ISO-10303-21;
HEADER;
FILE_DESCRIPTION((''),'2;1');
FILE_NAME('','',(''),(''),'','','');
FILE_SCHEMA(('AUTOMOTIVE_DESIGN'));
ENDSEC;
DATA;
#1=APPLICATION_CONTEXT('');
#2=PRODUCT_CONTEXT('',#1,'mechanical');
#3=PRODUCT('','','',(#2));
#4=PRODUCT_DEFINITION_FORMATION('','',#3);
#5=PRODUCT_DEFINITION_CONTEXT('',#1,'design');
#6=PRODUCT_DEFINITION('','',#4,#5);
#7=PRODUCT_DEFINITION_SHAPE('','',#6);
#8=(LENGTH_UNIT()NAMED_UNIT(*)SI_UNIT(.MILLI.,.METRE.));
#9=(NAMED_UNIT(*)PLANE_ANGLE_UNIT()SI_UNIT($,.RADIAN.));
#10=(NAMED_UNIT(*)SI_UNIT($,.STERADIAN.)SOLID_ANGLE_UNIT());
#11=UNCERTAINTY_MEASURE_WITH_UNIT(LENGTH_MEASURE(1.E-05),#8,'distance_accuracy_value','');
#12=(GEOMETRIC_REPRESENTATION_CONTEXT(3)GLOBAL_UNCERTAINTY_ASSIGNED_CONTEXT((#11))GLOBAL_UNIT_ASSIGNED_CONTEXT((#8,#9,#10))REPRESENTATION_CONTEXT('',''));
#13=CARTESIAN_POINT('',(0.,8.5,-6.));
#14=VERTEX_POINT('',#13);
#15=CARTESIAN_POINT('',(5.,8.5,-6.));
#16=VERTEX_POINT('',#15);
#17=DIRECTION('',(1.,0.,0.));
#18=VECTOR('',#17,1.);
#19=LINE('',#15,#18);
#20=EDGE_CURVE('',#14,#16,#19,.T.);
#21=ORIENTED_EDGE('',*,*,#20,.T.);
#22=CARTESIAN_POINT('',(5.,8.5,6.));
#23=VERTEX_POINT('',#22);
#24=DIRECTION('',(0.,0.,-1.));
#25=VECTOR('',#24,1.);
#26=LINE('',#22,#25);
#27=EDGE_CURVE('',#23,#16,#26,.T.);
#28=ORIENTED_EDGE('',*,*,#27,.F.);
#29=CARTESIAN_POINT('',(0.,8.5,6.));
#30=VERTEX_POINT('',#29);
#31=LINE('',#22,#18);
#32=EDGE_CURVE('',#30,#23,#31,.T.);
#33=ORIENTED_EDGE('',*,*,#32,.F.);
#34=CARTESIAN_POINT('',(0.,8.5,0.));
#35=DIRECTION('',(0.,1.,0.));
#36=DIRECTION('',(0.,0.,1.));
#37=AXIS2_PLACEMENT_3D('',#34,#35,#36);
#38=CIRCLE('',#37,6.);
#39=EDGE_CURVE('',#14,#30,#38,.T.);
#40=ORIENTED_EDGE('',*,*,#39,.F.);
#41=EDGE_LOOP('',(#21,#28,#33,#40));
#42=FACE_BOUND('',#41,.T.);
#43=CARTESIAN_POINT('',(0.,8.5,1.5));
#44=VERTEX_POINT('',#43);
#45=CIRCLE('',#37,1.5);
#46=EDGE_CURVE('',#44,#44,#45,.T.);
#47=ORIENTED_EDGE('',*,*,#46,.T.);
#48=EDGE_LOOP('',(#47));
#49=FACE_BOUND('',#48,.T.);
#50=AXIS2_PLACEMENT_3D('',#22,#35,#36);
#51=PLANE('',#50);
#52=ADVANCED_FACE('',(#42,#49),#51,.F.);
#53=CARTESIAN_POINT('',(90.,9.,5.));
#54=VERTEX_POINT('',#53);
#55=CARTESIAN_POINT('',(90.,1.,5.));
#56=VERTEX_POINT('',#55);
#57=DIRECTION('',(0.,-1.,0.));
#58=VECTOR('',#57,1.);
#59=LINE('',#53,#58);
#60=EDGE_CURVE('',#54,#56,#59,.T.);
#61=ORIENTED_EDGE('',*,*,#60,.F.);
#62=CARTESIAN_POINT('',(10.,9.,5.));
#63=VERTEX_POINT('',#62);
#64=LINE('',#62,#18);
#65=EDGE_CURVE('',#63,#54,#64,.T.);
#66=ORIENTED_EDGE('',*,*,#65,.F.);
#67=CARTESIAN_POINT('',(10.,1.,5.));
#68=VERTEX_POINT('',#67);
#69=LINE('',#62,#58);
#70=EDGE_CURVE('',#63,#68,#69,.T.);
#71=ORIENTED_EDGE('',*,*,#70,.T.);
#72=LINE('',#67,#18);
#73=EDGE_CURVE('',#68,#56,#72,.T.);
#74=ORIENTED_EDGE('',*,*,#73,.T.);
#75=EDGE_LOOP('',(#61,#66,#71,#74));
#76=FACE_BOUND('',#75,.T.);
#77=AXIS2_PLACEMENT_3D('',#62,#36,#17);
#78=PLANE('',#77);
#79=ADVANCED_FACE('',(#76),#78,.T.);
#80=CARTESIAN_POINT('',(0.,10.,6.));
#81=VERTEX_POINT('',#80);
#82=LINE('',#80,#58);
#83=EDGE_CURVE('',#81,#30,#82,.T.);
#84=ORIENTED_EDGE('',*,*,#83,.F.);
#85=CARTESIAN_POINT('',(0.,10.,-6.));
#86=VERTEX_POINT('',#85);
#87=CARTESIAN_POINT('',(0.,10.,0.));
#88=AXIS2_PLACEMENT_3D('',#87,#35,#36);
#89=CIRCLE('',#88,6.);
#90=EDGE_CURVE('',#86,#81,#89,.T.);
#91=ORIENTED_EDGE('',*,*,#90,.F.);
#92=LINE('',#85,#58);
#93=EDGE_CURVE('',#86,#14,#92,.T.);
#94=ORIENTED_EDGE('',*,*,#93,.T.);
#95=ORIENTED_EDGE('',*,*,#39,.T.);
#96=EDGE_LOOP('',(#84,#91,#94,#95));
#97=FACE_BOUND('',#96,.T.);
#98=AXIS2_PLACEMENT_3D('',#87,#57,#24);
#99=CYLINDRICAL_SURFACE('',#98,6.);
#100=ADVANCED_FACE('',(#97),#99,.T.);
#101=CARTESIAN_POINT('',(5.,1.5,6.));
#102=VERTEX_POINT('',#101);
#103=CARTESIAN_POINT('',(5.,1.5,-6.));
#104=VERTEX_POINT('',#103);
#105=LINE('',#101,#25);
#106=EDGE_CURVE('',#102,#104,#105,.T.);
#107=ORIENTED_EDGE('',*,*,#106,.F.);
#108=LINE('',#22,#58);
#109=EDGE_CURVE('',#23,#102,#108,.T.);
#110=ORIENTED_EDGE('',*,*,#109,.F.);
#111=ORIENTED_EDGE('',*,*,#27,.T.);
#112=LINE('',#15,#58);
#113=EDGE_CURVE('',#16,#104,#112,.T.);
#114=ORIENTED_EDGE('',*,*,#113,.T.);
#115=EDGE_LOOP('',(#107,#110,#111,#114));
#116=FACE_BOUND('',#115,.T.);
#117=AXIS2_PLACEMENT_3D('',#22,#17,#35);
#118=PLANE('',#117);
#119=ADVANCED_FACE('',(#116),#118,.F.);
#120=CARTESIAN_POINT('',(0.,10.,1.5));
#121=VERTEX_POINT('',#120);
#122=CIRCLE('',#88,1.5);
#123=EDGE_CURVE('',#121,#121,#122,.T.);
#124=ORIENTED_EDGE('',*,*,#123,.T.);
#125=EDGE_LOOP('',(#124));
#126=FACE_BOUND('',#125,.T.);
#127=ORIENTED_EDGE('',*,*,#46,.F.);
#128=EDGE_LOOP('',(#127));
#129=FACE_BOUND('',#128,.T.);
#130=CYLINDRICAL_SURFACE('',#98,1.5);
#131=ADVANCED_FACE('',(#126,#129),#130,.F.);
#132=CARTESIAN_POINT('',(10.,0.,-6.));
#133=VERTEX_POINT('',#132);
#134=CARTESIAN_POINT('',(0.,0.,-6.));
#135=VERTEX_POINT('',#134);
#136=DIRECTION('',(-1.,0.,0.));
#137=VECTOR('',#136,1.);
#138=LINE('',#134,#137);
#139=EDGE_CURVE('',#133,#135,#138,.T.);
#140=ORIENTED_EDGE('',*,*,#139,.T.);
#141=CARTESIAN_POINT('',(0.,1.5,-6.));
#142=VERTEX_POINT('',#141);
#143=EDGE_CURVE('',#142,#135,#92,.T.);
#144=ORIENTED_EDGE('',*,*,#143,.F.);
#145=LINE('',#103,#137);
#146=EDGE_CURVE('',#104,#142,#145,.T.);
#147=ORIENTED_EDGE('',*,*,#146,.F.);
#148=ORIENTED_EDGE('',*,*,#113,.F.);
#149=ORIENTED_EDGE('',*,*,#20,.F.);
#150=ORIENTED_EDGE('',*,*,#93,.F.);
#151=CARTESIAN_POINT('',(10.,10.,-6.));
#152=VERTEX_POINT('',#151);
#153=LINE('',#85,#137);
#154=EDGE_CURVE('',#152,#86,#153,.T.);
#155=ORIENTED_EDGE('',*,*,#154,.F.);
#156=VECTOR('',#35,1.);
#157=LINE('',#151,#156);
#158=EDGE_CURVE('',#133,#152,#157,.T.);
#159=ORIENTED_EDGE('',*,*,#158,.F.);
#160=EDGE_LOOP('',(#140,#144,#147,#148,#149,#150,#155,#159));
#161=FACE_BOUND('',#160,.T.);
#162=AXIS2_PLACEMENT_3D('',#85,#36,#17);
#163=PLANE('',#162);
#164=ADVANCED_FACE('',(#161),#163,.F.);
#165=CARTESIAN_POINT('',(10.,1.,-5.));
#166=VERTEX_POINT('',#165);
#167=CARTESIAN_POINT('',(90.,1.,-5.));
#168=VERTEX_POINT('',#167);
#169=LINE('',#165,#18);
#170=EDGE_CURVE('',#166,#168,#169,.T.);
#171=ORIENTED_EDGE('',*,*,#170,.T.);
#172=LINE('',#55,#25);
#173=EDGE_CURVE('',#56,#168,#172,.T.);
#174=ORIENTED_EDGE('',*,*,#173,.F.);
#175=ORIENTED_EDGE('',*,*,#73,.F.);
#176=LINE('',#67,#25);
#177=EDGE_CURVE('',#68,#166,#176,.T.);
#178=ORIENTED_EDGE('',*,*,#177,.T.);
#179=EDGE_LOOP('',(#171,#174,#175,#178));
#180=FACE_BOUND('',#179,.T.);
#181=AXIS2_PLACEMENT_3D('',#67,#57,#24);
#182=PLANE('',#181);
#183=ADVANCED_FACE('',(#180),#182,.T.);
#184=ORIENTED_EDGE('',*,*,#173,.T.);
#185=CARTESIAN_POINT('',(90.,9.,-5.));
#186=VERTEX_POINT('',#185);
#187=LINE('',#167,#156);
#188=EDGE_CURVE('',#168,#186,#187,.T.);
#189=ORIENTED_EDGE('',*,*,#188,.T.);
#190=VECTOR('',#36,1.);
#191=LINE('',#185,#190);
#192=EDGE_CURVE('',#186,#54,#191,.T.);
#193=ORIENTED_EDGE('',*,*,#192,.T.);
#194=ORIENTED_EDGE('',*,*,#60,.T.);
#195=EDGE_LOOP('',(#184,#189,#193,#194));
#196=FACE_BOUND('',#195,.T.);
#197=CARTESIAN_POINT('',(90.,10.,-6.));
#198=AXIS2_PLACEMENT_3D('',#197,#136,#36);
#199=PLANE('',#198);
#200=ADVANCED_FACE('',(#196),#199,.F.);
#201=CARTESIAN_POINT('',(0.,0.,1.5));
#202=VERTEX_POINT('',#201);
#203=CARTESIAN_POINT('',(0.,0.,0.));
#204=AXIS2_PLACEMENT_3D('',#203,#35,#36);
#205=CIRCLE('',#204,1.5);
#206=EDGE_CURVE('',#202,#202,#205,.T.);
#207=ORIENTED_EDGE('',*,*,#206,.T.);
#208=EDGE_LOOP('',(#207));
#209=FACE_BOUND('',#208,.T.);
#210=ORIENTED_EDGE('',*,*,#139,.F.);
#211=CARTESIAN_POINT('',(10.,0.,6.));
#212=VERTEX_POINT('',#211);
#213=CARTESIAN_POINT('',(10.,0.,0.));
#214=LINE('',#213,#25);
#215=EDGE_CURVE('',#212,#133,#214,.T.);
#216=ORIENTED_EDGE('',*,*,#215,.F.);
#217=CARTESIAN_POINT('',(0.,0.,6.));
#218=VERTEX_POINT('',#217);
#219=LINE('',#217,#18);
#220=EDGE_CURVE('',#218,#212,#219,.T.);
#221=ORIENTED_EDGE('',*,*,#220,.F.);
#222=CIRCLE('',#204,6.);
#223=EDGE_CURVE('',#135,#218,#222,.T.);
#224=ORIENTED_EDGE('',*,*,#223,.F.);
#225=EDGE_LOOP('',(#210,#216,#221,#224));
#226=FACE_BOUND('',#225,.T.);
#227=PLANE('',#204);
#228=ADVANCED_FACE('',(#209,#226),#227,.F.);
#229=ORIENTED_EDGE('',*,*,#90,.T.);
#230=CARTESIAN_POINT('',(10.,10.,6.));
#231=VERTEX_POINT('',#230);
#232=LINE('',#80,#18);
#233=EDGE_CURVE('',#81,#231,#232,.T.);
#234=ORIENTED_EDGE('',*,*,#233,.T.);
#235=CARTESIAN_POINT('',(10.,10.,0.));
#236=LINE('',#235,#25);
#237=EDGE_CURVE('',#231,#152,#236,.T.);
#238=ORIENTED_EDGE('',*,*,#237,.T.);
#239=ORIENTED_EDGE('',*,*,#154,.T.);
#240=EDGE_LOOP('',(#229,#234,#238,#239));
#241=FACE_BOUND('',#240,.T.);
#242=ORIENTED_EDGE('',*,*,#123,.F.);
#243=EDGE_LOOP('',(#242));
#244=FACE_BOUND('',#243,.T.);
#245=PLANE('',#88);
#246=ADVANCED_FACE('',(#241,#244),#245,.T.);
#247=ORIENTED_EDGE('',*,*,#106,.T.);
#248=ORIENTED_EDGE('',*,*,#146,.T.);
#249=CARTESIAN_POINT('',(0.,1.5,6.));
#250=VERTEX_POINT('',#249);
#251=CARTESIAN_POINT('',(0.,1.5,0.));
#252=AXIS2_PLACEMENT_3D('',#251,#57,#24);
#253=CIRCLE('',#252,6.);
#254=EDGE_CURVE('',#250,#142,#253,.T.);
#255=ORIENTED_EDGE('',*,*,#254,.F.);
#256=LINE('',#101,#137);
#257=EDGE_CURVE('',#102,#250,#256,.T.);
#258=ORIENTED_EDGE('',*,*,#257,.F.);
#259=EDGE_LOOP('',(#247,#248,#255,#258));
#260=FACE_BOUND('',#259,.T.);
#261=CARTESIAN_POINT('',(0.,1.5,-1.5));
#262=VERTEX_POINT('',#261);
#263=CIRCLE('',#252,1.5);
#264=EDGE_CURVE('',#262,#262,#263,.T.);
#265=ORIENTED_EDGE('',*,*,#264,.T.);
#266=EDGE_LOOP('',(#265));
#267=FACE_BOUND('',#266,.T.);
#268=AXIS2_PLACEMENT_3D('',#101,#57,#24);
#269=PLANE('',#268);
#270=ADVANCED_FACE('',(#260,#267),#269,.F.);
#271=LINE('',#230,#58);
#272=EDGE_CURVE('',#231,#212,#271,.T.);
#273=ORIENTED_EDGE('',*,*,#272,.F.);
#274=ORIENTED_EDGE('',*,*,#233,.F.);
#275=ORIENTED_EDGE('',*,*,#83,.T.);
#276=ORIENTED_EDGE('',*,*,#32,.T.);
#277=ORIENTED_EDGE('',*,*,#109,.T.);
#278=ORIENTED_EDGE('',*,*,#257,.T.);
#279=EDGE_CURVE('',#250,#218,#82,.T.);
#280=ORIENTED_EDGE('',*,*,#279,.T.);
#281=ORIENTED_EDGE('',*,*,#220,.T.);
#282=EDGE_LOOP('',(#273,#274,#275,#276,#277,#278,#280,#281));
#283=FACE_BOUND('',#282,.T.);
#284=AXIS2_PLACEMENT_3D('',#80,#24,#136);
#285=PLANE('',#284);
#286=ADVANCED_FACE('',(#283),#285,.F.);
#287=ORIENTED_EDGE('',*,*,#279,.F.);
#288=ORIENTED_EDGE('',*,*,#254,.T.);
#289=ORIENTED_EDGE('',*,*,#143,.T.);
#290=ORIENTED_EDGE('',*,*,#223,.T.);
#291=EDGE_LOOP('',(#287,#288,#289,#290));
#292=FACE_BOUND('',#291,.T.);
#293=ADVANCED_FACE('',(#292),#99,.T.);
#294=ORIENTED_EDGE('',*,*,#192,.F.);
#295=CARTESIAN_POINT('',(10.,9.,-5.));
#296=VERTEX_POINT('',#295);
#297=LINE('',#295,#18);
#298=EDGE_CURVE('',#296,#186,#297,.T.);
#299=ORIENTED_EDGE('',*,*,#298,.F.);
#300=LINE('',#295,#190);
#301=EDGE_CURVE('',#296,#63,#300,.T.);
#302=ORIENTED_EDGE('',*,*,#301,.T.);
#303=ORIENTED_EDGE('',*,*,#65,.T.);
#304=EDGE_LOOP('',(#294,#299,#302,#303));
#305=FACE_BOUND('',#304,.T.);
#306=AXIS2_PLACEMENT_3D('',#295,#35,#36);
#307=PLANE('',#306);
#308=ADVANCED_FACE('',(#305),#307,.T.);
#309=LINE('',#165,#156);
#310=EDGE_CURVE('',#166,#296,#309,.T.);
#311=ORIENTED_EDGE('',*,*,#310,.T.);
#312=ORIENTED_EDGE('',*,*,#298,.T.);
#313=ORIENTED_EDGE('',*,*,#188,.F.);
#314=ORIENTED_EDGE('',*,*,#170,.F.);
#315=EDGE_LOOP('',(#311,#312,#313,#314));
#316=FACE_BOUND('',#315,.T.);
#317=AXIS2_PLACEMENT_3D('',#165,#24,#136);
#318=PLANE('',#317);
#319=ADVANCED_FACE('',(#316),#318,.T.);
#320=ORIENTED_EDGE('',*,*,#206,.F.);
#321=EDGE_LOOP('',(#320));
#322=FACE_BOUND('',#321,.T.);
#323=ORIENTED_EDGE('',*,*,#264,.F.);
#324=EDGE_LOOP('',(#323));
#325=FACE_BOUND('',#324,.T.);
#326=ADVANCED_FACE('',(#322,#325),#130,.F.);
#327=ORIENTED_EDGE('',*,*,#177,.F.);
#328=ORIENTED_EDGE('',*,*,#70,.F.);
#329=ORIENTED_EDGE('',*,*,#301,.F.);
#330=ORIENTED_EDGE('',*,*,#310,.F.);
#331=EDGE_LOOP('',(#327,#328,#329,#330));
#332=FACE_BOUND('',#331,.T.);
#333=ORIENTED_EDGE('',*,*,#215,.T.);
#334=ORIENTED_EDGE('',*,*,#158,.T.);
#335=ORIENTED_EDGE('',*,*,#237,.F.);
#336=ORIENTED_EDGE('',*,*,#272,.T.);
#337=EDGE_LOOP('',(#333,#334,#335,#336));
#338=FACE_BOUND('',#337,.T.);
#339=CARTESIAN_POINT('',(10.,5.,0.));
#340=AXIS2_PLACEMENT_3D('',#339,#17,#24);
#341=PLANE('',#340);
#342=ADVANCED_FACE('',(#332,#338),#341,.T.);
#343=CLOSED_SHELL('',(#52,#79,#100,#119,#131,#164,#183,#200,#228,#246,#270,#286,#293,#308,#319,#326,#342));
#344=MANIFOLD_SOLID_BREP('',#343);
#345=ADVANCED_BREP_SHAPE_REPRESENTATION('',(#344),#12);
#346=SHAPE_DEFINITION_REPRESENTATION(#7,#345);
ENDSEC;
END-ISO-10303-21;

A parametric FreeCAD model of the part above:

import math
import FreeCAD as App
import Part
import Sketcher

V = App.Vector

doc = App.newDocument("Part")
body = doc.addObject("PartDesign::Body", "Body")

sketch1 = doc.addObject("Sketcher::SketchObject", "Sketch")
body.addObject(sketch1)
sketch1.AttachmentSupport = (doc.XZ_Plane, [""])
sketch1.MapMode = "FlatFace"
sketch1.addGeometry([
    Part.LineSegment(V(90, 6, 0), V(90, -6, 0)),
    Part.LineSegment(V(90, -6, 0), V(0, -6, 0)),
    Part.ArcOfCircle(Part.Circle(V(0, 0, 0), V(0, 0, 1), 6), math.radians(90), math.radians(270)),
    Part.LineSegment(V(0, 6, 0), V(90, 6, 0)),
    Part.Circle(V(0, 0, 0), V(0, 0, 1), 1.5),
], False)
sketch1.addConstraint([
    Sketcher.Constraint("Coincident", 0, 2, 1, 1),
    Sketcher.Constraint("Tangent", 1, 2, 2, 2),
    Sketcher.Constraint("Tangent", 2, 1, 3, 1),
    Sketcher.Constraint("Coincident", 3, 2, 0, 1),
    Sketcher.Constraint("Vertical", 0),
    Sketcher.Constraint("Horizontal", 1),
    Sketcher.Constraint("Horizontal", 3),
    Sketcher.Constraint("Coincident", 2, 3, -1, 1),
    Sketcher.Constraint("Coincident", 4, 3, -1, 1),
    Sketcher.Constraint("Diameter", 4, 3.0),
    Sketcher.Constraint("Radius", 2, 6.0),
    Sketcher.Constraint("DistanceX", 1, 2, 1, 1, 90.0),
])
pad1 = doc.addObject("PartDesign::Pad", "Pad")
body.addObject(pad1)
pad1.Profile = sketch1
pad1.Length = 10
pad1.Reversed = True

sketch2 = doc.addObject("Sketcher::SketchObject", "Sketch001")
body.addObject(sketch2)
sketch2.AttachmentSupport = (doc.XY_Plane, [""])
sketch2.MapMode = "FlatFace"
sketch2.AttachmentOffset = App.Placement(V(0, 0, -6), App.Rotation())
sketch2.addGeometry([
    Part.LineSegment(V(5, 8, 0), V(5, 2, 0)),
    Part.LineSegment(V(5, 2, 0), V(-17, 2, 0)),
    Part.LineSegment(V(-17, 2, 0), V(-17, 8, 0)),
    Part.LineSegment(V(-17, 8, 0), V(5, 8, 0)),
], False)
sketch2.addConstraint([
    Sketcher.Constraint("Coincident", 0, 2, 1, 1),
    Sketcher.Constraint("Coincident", 1, 2, 2, 1),
    Sketcher.Constraint("Coincident", 2, 2, 3, 1),
    Sketcher.Constraint("Coincident", 3, 2, 0, 1),
    Sketcher.Constraint("Vertical", 0),
    Sketcher.Constraint("Horizontal", 1),
    Sketcher.Constraint("Vertical", 2),
    Sketcher.Constraint("Horizontal", 3),
    Sketcher.Constraint("DistanceX", 1, 2, 1, 1, 22.0),
    Sketcher.Constraint("DistanceY", 0, 2, 0, 1, 7.0),
    Sketcher.Constraint("DistanceX", -1, 1, 0, 2, 5.0),
    Sketcher.Constraint("DistanceY", -1, 1, 0, 2, 1.5),
])
pocket1 = doc.addObject("PartDesign::Pocket", "Pocket")
body.addObject(pocket1)
pocket1.Profile = sketch2
pocket1.Type = "ThroughAll"
pocket1.Reversed = True

sketch3 = doc.addObject("Sketcher::SketchObject", "Sketch002")
body.addObject(sketch3)
sketch3.AttachmentSupport = (doc.YZ_Plane, [""])
sketch3.MapMode = "FlatFace"
sketch3.AttachmentOffset = App.Placement(V(0, 0, 90), App.Rotation())
sketch3.addGeometry([
    Part.LineSegment(V(21, 17, 0), V(-11, 17, 0)),
    Part.LineSegment(V(-11, 17, 0), V(-11, -17, 0)),
    Part.LineSegment(V(-11, -17, 0), V(21, -17, 0)),
    Part.LineSegment(V(21, -17, 0), V(21, 17, 0)),
    Part.LineSegment(V(1, -5, 0), V(1, 5, 0)),
    Part.LineSegment(V(1, 5, 0), V(9, 5, 0)),
    Part.LineSegment(V(9, 5, 0), V(9, -5, 0)),
    Part.LineSegment(V(9, -5, 0), V(1, -5, 0)),
], False)
sketch3.addConstraint([
    Sketcher.Constraint("Coincident", 0, 2, 1, 1),
    Sketcher.Constraint("Coincident", 1, 2, 2, 1),
    Sketcher.Constraint("Coincident", 2, 2, 3, 1),
    Sketcher.Constraint("Coincident", 3, 2, 0, 1),
    Sketcher.Constraint("Coincident", 4, 2, 5, 1),
    Sketcher.Constraint("Coincident", 5, 2, 6, 1),
    Sketcher.Constraint("Coincident", 6, 2, 7, 1),
    Sketcher.Constraint("Coincident", 7, 2, 4, 1),
    Sketcher.Constraint("Horizontal", 0),
    Sketcher.Constraint("Vertical", 1),
    Sketcher.Constraint("Horizontal", 2),
    Sketcher.Constraint("Vertical", 3),
    Sketcher.Constraint("Vertical", 4),
    Sketcher.Constraint("Horizontal", 5),
    Sketcher.Constraint("Vertical", 6),
    Sketcher.Constraint("Horizontal", 7),
    Sketcher.Constraint("DistanceX", 5, 1, 5, 2, 8.0),
    Sketcher.Constraint("DistanceY", 4, 1, 4, 2, 10.0),
    Sketcher.Constraint("DistanceX", -1, 1, 4, 2, 1.0),
    Sketcher.Constraint("DistanceY", -1, 1, 4, 2, 5.0),
    Sketcher.Constraint("DistanceX", 0, 2, 0, 1, 31.452),
    Sketcher.Constraint("DistanceY", 1, 2, 1, 1, 33.452),
    Sketcher.Constraint("DistanceX", 0, 2, -1, 1, 10.726),
    Sketcher.Constraint("DistanceY", -1, 1, 0, 2, 16.726),
])
pocket2 = doc.addObject("PartDesign::Pocket", "Pocket001")
body.addObject(pocket2)
pocket2.Profile = sketch3
pocket2.Length = 80

doc.recompute()
